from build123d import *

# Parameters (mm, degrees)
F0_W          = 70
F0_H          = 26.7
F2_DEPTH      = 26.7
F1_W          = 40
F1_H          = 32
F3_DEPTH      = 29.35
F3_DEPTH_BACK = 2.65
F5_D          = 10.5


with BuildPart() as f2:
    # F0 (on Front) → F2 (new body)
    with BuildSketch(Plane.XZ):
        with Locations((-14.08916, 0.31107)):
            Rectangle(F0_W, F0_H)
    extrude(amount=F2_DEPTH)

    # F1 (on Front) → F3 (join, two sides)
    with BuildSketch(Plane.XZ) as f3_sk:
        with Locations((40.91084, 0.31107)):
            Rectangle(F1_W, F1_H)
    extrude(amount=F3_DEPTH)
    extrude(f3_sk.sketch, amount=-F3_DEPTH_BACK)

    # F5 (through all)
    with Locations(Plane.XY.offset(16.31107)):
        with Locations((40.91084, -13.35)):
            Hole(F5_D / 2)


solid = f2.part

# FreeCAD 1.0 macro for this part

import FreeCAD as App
import Part
import Sketcher

V = App.Vector
Q = App.Units.Quantity

doc = App.newDocument("Part")
body = doc.addObject("PartDesign::Body", "Body")

sketch1 = doc.addObject("Sketcher::SketchObject", "Sketch")
body.addObject(sketch1)
sketch1.AttachmentSupport = (doc.XZ_Plane, [""])
sketch1.MapMode = "FlatFace"
sketch1.addGeometry([
    Part.LineSegment(V(-49.08916, 13.66107, 0), V(-49.08916, -13.03893, 0)),
    Part.LineSegment(V(-49.08916, -13.03893, 0), V(20.91084, -13.03893, 0)),
    Part.LineSegment(V(20.91084, -13.03893, 0), V(20.91084, 13.66107, 0)),
    Part.LineSegment(V(20.91084, 13.66107, 0), V(-49.08916, 13.66107, 0)),
], False)
sketch1.addConstraint([
    Sketcher.Constraint("Coincident", 0, 2, 1, 1),
    Sketcher.Constraint("Coincident", 1, 2, 2, 1),
    Sketcher.Constraint("Coincident", 2, 2, 3, 1),
    Sketcher.Constraint("Coincident", 3, 2, 0, 1),
    Sketcher.Constraint("Vertical", 0),
    Sketcher.Constraint("Horizontal", 1),
    Sketcher.Constraint("Vertical", 2),
    Sketcher.Constraint("Horizontal", 3),
    Sketcher.Constraint("DistanceX", 1, 1, 1, 2, Q("70 mm")),
    Sketcher.Constraint("DistanceY", 0, 2, 0, 1, Q("26.7 mm")),
    Sketcher.Constraint("DistanceX", 0, 2, -1, 1, Q("49.08916 mm")),
    Sketcher.Constraint("DistanceY", 0, 2, -1, 1, Q("13.03893 mm")),
])
pad1 = doc.addObject("PartDesign::Pad", "Pad")
body.addObject(pad1)
pad1.Profile = sketch1
pad1.Length = 26.7

sketch2 = doc.addObject("Sketcher::SketchObject", "Sketch001")
body.addObject(sketch2)
sketch2.AttachmentSupport = (doc.XZ_Plane, [""])
sketch2.MapMode = "FlatFace"
sketch2.addGeometry([
    Part.LineSegment(V(20.91084, 16.31107, 0), V(20.91084, -15.68893, 0)),
    Part.LineSegment(V(20.91084, -15.68893, 0), V(60.91084, -15.68893, 0)),
    Part.LineSegment(V(60.91084, -15.68893, 0), V(60.91084, 16.31107, 0)),
    Part.LineSegment(V(60.91084, 16.31107, 0), V(20.91084, 16.31107, 0)),
], False)
sketch2.addConstraint([
    Sketcher.Constraint("Coincident", 0, 2, 1, 1),
    Sketcher.Constraint("Coincident", 1, 2, 2, 1),
    Sketcher.Constraint("Coincident", 2, 2, 3, 1),
    Sketcher.Constraint("Coincident", 3, 2, 0, 1),
    Sketcher.Constraint("Vertical", 0),
    Sketcher.Constraint("Horizontal", 1),
    Sketcher.Constraint("Vertical", 2),
    Sketcher.Constraint("Horizontal", 3),
    Sketcher.Constraint("DistanceX", 1, 1, 1, 2, Q("40 mm")),
    Sketcher.Constraint("DistanceY", 0, 2, 0, 1, Q("32 mm")),
    Sketcher.Constraint("DistanceX", -1, 1, 0, 2, Q("20.91084 mm")),
    Sketcher.Constraint("DistanceY", 0, 2, -1, 1, Q("15.68893 mm")),
])
pad2 = doc.addObject("PartDesign::Pad", "Pad001")
body.addObject(pad2)
pad2.Profile = sketch2
pad2.Type = "TwoLengths"
pad2.Length = 29.35
pad2.Length2 = 2.65

sketch3 = doc.addObject("Sketcher::SketchObject", "Sketch002")
body.addObject(sketch3)
sketch3.AttachmentSupport = (doc.XY_Plane, [""])
sketch3.MapMode = "FlatFace"
sketch3.AttachmentOffset = App.Placement(V(0, 0, 16.31107), App.Rotation())
sketch3.addGeometry(Part.Circle(V(40.91084, -13.35, 0), V(0, 0, 1), 5.25), False)
sketch3.addConstraint([
    Sketcher.Constraint("Diameter", 0, Q("10.5 mm")),
    Sketcher.Constraint("DistanceY", 0, 3, -1, 1, Q("13.35 mm")),
    Sketcher.Constraint("DistanceX", -1, 1, 0, 3, Q("40.91084 mm")),
])
doc.recompute()
hole = doc.addObject("PartDesign::Hole", "Hole")
body.addObject(hole)
hole.Profile = sketch3
hole.ThreadType = "None"
hole.Diameter = 10.5
hole.DepthType = "ThroughAll"

doc.recompute()
